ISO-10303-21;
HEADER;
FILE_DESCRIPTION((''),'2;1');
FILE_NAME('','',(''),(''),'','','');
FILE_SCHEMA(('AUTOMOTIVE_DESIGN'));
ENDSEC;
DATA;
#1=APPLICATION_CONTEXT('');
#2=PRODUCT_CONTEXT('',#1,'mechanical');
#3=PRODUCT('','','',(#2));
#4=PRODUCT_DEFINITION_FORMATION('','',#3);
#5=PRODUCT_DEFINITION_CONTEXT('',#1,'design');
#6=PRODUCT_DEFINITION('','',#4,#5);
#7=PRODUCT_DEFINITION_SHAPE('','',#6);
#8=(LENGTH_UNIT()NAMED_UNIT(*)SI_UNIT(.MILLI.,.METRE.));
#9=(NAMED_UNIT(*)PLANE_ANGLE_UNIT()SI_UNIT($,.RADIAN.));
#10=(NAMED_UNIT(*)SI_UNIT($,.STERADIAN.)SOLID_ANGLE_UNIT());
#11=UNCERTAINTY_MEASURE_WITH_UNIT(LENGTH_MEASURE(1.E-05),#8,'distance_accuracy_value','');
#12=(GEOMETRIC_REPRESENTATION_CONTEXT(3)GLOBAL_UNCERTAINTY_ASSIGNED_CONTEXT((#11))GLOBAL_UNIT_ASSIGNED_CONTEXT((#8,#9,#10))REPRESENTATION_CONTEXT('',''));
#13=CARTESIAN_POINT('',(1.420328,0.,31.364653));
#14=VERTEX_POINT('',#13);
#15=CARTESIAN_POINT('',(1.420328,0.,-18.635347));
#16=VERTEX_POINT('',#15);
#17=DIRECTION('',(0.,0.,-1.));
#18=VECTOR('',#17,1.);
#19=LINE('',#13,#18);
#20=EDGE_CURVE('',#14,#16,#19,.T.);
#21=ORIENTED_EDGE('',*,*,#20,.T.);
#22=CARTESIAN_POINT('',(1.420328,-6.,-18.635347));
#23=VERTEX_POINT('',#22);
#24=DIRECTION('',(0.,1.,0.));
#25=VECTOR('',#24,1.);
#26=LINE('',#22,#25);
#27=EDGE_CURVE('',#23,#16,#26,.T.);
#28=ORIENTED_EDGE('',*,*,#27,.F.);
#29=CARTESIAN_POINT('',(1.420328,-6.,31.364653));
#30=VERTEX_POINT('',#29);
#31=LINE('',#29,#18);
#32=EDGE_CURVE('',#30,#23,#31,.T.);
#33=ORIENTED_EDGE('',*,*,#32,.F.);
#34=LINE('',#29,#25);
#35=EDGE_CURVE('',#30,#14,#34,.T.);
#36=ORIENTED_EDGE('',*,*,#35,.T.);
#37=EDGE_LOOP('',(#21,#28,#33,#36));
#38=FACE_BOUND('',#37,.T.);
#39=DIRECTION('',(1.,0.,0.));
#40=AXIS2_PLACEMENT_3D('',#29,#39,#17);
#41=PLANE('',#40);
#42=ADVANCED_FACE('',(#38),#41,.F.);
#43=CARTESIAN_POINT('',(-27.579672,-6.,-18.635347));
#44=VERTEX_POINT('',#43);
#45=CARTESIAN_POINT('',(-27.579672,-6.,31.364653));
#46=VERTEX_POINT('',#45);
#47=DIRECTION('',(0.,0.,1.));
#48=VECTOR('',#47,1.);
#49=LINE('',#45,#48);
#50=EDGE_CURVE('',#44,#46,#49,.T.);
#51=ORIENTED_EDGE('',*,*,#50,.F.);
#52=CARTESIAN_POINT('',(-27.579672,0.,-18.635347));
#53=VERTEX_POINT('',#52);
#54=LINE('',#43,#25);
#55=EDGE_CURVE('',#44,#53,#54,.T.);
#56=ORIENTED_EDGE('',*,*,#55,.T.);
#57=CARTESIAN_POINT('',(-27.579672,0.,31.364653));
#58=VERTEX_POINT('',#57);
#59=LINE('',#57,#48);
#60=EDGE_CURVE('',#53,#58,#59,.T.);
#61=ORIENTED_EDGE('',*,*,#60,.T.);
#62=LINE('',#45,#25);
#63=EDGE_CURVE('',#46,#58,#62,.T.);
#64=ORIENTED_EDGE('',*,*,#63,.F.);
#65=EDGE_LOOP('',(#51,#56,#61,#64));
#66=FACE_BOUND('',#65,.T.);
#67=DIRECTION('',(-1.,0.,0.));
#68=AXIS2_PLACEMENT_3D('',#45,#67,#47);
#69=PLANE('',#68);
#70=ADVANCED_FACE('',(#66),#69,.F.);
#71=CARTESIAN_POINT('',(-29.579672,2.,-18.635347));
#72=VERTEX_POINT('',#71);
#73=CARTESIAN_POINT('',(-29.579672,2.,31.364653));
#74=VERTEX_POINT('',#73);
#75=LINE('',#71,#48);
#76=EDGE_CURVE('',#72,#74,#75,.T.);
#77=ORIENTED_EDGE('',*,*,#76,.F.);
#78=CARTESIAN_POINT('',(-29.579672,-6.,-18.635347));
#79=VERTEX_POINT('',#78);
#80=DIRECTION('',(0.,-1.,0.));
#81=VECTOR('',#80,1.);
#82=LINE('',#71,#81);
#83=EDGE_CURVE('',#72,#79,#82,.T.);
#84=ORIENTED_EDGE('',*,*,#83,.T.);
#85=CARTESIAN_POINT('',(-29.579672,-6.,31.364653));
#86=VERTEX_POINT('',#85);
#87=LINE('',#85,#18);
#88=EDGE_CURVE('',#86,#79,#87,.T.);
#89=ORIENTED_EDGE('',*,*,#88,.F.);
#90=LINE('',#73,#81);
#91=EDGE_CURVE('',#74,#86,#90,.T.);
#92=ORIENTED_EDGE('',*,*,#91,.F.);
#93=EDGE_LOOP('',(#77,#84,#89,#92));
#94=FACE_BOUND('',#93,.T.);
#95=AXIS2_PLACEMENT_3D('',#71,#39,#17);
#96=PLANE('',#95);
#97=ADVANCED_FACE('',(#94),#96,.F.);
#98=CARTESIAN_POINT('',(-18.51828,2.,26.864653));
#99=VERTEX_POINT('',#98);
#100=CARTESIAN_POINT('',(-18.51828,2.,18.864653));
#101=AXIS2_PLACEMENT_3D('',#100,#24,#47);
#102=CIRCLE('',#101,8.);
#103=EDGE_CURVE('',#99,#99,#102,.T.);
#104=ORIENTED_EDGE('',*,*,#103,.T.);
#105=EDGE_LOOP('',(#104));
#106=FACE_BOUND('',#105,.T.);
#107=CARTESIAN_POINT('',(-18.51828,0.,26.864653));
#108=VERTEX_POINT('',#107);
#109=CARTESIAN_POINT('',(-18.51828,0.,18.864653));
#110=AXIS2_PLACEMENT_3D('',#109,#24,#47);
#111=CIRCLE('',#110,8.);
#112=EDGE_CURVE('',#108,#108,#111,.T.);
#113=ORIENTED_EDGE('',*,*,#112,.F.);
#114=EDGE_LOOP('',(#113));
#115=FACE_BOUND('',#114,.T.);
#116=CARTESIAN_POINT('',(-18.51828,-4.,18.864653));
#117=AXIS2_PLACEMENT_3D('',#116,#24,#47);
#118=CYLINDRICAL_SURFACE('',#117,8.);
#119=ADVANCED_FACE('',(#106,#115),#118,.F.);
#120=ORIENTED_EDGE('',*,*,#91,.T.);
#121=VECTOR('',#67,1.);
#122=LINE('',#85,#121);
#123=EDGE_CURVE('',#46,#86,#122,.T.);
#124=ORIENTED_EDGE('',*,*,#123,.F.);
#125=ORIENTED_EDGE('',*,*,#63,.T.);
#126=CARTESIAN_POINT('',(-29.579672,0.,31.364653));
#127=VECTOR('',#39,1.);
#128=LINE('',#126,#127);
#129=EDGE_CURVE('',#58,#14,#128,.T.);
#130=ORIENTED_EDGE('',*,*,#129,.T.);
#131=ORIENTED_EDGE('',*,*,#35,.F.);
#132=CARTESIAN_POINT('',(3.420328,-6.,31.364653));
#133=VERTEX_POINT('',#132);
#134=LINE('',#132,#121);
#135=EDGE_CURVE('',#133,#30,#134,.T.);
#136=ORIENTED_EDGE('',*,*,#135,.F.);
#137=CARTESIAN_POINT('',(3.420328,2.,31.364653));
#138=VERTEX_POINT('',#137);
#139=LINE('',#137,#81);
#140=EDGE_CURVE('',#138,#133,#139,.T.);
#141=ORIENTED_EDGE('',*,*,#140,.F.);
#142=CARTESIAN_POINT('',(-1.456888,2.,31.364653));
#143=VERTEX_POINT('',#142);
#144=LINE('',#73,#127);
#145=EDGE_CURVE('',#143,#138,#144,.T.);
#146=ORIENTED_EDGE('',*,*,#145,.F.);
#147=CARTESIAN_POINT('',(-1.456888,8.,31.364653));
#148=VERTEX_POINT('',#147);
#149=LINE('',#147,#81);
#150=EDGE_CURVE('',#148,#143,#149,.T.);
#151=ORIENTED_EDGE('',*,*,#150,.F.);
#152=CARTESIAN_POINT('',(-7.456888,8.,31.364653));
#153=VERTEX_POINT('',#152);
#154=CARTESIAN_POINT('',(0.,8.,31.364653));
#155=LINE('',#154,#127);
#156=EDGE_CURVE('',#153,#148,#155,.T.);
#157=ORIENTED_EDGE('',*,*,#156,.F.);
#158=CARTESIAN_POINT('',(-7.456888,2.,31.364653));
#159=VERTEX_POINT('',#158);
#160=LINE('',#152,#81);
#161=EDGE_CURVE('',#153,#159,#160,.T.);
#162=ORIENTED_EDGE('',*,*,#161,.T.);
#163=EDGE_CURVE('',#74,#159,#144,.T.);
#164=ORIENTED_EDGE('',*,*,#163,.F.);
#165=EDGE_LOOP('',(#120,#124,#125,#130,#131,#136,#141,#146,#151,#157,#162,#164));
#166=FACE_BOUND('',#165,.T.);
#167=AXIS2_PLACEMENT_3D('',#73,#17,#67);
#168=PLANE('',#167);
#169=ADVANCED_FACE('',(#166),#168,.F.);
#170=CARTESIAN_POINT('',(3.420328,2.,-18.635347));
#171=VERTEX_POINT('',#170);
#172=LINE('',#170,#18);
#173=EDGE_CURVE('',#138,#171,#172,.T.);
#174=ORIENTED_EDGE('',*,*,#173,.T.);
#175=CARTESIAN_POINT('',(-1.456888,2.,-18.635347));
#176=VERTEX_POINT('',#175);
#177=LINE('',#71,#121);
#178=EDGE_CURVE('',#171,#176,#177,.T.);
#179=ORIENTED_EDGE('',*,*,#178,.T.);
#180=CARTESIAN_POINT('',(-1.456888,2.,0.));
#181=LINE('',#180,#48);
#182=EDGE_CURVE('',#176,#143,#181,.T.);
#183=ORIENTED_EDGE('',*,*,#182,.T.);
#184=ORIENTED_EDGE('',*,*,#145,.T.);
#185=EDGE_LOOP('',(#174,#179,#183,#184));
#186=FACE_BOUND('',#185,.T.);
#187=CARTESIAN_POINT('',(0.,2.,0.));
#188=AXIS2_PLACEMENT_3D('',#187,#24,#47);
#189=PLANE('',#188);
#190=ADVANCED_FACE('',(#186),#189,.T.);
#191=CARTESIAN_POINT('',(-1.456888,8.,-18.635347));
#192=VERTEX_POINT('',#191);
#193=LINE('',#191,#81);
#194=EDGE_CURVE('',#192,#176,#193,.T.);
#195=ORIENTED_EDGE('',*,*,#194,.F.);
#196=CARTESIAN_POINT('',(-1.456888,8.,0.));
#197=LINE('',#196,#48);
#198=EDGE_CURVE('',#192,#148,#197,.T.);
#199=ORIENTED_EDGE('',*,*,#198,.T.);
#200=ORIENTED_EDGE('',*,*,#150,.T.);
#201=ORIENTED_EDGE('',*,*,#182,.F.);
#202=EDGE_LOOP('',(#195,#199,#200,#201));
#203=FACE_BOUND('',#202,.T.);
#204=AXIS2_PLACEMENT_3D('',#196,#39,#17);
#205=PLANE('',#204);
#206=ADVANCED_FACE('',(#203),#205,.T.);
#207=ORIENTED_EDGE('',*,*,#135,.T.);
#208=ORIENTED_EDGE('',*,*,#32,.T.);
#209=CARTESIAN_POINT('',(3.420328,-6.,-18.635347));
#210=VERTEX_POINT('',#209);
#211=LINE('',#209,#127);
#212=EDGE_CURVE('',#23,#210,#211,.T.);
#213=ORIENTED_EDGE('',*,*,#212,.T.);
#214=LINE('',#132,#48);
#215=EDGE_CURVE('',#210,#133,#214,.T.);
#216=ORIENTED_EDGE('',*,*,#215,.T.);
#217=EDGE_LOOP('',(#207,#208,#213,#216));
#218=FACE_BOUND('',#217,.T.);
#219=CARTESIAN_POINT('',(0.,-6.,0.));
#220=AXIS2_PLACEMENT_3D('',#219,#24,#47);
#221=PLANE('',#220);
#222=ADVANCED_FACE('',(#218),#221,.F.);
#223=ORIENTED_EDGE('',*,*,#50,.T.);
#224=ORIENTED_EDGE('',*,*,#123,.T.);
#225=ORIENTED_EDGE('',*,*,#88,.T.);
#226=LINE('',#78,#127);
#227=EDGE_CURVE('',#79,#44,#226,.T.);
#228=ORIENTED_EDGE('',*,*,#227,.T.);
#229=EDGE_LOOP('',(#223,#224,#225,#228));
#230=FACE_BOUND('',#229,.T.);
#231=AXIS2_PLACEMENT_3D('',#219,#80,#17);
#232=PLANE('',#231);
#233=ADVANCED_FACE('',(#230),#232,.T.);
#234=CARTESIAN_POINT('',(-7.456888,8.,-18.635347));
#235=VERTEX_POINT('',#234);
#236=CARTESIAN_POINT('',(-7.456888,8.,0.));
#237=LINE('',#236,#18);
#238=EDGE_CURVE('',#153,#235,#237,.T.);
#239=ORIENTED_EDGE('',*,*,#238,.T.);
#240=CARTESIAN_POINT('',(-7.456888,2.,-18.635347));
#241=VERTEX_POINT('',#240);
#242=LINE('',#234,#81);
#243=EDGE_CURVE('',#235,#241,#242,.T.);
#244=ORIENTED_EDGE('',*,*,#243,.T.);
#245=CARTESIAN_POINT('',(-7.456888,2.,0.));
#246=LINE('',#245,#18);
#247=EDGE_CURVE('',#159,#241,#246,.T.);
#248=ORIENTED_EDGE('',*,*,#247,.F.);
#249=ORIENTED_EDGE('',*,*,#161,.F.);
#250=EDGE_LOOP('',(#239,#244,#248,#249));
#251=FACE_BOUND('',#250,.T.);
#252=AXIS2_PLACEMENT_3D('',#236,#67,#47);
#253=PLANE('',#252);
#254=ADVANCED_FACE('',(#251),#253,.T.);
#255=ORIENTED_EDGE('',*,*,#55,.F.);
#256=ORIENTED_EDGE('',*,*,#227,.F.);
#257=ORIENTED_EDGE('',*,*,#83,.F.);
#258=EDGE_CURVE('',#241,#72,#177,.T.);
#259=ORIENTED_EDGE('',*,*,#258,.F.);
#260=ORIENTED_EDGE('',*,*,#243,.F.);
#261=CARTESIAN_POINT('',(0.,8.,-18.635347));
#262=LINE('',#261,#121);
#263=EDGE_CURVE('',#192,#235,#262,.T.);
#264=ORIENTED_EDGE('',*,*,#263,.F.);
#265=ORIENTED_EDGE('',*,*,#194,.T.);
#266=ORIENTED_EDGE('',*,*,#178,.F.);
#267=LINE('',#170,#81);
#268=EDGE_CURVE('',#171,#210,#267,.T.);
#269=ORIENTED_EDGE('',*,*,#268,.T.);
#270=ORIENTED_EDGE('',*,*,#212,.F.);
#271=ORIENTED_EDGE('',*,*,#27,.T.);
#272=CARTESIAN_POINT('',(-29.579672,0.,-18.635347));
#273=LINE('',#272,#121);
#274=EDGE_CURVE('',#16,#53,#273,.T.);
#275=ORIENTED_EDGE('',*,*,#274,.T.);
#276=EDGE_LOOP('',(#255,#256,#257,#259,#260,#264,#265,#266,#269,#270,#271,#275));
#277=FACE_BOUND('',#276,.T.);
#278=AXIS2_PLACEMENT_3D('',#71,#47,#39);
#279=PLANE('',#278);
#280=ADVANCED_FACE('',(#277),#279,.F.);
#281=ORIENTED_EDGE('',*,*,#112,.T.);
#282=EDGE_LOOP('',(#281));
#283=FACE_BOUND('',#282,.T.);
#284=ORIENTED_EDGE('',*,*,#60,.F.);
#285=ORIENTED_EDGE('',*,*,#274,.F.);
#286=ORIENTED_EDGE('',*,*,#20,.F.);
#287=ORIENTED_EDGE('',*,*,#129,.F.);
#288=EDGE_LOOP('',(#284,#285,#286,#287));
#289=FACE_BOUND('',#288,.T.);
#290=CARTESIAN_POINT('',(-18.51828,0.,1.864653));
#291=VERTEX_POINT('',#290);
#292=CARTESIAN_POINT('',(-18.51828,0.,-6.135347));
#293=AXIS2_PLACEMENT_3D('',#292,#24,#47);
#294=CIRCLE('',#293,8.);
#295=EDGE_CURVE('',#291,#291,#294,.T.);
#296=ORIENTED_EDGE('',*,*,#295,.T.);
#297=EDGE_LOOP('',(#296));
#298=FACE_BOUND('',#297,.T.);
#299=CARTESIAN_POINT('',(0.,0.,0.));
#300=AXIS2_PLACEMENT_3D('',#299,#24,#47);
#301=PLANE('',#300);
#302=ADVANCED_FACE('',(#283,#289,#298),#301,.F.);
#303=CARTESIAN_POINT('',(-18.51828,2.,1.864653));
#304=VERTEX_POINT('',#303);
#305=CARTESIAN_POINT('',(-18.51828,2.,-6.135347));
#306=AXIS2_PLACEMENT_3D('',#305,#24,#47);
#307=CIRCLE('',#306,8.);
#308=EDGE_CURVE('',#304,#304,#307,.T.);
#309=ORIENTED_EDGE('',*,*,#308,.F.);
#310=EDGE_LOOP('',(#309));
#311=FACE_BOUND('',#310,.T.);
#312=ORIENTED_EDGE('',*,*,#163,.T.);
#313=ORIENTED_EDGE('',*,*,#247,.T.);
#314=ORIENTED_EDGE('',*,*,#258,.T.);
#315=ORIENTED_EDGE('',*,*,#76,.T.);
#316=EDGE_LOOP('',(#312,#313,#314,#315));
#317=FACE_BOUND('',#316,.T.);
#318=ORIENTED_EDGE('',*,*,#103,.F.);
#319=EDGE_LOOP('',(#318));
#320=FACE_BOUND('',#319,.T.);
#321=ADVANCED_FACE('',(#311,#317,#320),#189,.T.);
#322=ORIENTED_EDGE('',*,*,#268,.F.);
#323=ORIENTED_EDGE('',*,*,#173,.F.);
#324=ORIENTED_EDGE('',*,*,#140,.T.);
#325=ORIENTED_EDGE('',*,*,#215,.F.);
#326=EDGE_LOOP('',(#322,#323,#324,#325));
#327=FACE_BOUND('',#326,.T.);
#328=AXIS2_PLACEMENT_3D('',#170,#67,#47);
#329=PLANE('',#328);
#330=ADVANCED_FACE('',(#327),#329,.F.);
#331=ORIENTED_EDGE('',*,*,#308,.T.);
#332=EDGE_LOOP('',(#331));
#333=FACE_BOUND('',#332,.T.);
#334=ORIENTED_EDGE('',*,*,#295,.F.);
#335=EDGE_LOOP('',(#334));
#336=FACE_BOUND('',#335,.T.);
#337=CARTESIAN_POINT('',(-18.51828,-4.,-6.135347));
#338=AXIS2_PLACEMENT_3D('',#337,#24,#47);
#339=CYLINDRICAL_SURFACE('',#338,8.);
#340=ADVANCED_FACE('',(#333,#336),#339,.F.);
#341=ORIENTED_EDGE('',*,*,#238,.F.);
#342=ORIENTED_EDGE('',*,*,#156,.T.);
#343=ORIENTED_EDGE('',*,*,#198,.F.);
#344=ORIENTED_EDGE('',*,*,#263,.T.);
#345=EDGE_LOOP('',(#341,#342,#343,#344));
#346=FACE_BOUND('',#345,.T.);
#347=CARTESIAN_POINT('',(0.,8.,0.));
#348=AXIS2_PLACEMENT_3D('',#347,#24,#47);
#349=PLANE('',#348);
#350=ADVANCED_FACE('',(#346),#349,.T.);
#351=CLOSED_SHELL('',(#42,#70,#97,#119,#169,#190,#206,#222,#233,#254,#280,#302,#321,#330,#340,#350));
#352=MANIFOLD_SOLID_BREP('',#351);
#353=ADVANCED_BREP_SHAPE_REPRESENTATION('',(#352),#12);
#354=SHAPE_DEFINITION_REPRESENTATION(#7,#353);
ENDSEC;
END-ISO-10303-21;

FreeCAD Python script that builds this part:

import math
import FreeCAD as App
import Part
import Sketcher

V = App.Vector
Q = App.Units.Quantity


def add_polygon(sketch, points):
    """Adds a closed chain of lines whose ends are joined by coincident constraints."""
    first, n = sketch.GeometryCount, len(points)
    for a, b in zip(points, points[1:] + points[:1]):
        sketch.addGeometry(Part.LineSegment(App.Vector(*a, 0), App.Vector(*b, 0)), False)
    for i in range(n):
        sketch.addConstraint(Sketcher.Constraint("Coincident", first + i, 2, first + (i + 1) % n, 1))

doc = App.newDocument("Part")
params = doc.addObject("Spreadsheet::Sheet", "Params")
for row, (alias, value) in enumerate([
    ("sketch1_width", "33 mm"),
    ("sketch1_height", "50 mm"),
    ("pad1_length", "2 mm"),
    ("sketch2_width", "2 mm"),
    ("sketch2_height", "50 mm"),
    ("pad2_length", "6 mm"),
    ("sketch3_width", "6 mm"),
    ("sketch3_height", "50 mm"),
    ("pad3_length", "6 mm"),
    ("sketch4_radius", "8 mm"),
    ("pocket1_length", "6 mm"),
], start=1):
    params.set(f"A{row}", alias)
    params.set(f"B{row}", "=" + value)
    params.setAlias(f"B{row}", alias)

body = doc.addObject("PartDesign::Body", "Body")

sketch1 = doc.addObject("Sketcher::SketchObject", "Sketch")
body.addObject(sketch1)
sketch1.AttachmentSupport = (doc.XZ_Plane, [""])
sketch1.MapMode = "FlatFace"
add_polygon(sketch1, [(-30, -19), (-30, 31), (3, 31), (3, -19)])
sketch1.addConstraint(Sketcher.Constraint("Vertical", 0))
sketch1.addConstraint(Sketcher.Constraint("Horizontal", 1))
sketch1.addConstraint(Sketcher.Constraint("Vertical", 2))
sketch1.addConstraint(Sketcher.Constraint("Horizontal", 3))
sketch1.addConstraint(Sketcher.Constraint("DistanceX", 1, 1, 1, 2, Q("33 mm")))
sketch1.addConstraint(Sketcher.Constraint("DistanceY", 0, 1, 0, 2, Q("50 mm")))
sketch1.addConstraint(Sketcher.Constraint("DistanceX", 0, 2, -1, 1, Q("29.579672 mm")))
sketch1.addConstraint(Sketcher.Constraint("DistanceY", -1, 1, 0, 2, Q("31.364653 mm")))
sketch1.setExpression("Constraints[8]", "Params.sketch1_width")
sketch1.setExpression("Constraints[9]", "Params.sketch1_height")
pad1 = doc.addObject("PartDesign::Pad", "Pad")
body.addObject(pad1)
pad1.Profile = sketch1
pad1.setExpression("Length", "Params.pad1_length")
pad1.Reversed = True

sketch2 = doc.addObject("Sketcher::SketchObject", "Sketch001")
body.addObject(sketch2)
sketch2.AttachmentSupport = (doc.XZ_Plane, [""])
sketch2.MapMode = "FlatFace"
add_polygon(sketch2, [(-29.6, 31.4), (-29.6, -18.6), (-27.6, -18.6), (-27.6, 31.4)])
add_polygon(sketch2, [(1.4, 31.4), (1.4, -18.6), (3.4, -18.6), (3.4, 31.4)])
sketch2.addConstraint(Sketcher.Constraint("Vertical", 0))
sketch2.addConstraint(Sketcher.Constraint("Horizontal", 1))
sketch2.addConstraint(Sketcher.Constraint("Vertical", 2))
sketch2.addConstraint(Sketcher.Constraint("Horizontal", 3))
sketch2.addConstraint(Sketcher.Constraint("Vertical", 4))
sketch2.addConstraint(Sketcher.Constraint("Horizontal", 5))
sketch2.addConstraint(Sketcher.Constraint("Vertical", 6))
sketch2.addConstraint(Sketcher.Constraint("Horizontal", 7))
sketch2.addConstraint(Sketcher.Constraint("Horizontal", 1, 2, 4, 2))
sketch2.addConstraint(Sketcher.Constraint("Horizontal", 3, 2, 6, 2))
sketch2.addConstraint(Sketcher.Constraint("Equal", 3, 5))
sketch2.addConstraint(Sketcher.Constraint("DistanceX", 1, 1, 1, 2, Q("2 mm")))
sketch2.addConstraint(Sketcher.Constraint("DistanceY", 0, 2, 0, 1, Q("50 mm")))
sketch2.addConstraint(Sketcher.Constraint("DistanceX", 1, 2, 4, 2, Q("29 mm")))
sketch2.addConstraint(Sketcher.Constraint("DistanceX", 0, 2, -1, 1, Q("29.579672 mm")))
sketch2.addConstraint(Sketcher.Constraint("DistanceY", 0, 2, -1, 1, Q("18.635347 mm")))
sketch2.setExpression("Constraints[19]", "Params.sketch2_width")
sketch2.setExpression("Constraints[20]", "Params.sketch2_height")
pad2 = doc.addObject("PartDesign::Pad", "Pad001")
body.addObject(pad2)
pad2.Profile = sketch2
pad2.setExpression("Length", "Params.pad2_length")

sketch3 = doc.addObject("Sketcher::SketchObject", "Sketch002")
body.addObject(sketch3)
sketch3.AttachmentSupport = (doc.XZ_Plane, [""])
sketch3.MapMode = "FlatFace"
sketch3.AttachmentOffset = App.Placement(V(0, 0, -2), App.Rotation())
add_polygon(sketch3, [(-7, 31), (-1, 31), (-1, -19), (-7, -19)])
sketch3.addConstraint(Sketcher.Constraint("Horizontal", 0))
sketch3.addConstraint(Sketcher.Constraint("Vertical", 1))
sketch3.addConstraint(Sketcher.Constraint("Horizontal", 2))
sketch3.addConstraint(Sketcher.Constraint("Vertical", 3))
sketch3.addConstraint(Sketcher.Constraint("DistanceX", 0, 1, 0, 2, Q("6 mm")))
sketch3.addConstraint(Sketcher.Constraint("DistanceY", 1, 2, 1, 1, Q("50 mm")))
sketch3.addConstraint(Sketcher.Constraint("DistanceX", 0, 2, -1, 1, Q("1.456888 mm")))
sketch3.addConstraint(Sketcher.Constraint("DistanceY", -1, 1, 0, 2, Q("31.364653 mm")))
sketch3.setExpression("Constraints[8]", "Params.sketch3_width")
sketch3.setExpression("Constraints[9]", "Params.sketch3_height")
pad3 = doc.addObject("PartDesign::Pad", "Pad002")
body.addObject(pad3)
pad3.Profile = sketch3
pad3.setExpression("Length", "Params.pad3_length")
pad3.Reversed = True

sketch4 = doc.addObject("Sketcher::SketchObject", "Sketch003")
body.addObject(sketch4)
sketch4.AttachmentSupport = (doc.XZ_Plane, [""])
sketch4.MapMode = "FlatFace"
sketch4.AttachmentOffset = App.Placement(V(0, 0, -2), App.Rotation())
sketch4.addGeometry(Part.ArcOfCircle(Part.Circle(V(-19, 19, 0), V(0, 0, 1), 8), math.radians(-90), math.radians(0)), False)
sketch4.addGeometry(Part.ArcOfCircle(Part.Circle(V(-19, 19, 0), V(0, 0, 1), 8), math.radians(90), math.radians(270)), False)
sketch4.addGeometry(Part.ArcOfCircle(Part.Circle(V(-19, 19, 0), V(0, 0, 1), 8), math.radians(0), math.radians(90)), False)
sketch4.addGeometry(Part.ArcOfCircle(Part.Circle(V(-19, -6, 0), V(0, 0, 1), 8), math.radians(90), math.radians(270)), False)
sketch4.addGeometry(Part.ArcOfCircle(Part.Circle(V(-19, -6, 0), V(0, 0, 1), 8), math.radians(0), math.radians(90)), False)
sketch4.addGeometry(Part.ArcOfCircle(Part.Circle(V(-19, -6, 0), V(0, 0, 1), 8), math.radians(-90), math.radians(0)), False)
sketch4.addConstraint(Sketcher.Constraint("Tangent", 0, 1, 1, 2))
sketch4.addConstraint(Sketcher.Constraint("Tangent", 1, 1, 2, 2))
sketch4.addConstraint(Sketcher.Constraint("Tangent", 2, 1, 0, 2))
sketch4.addConstraint(Sketcher.Constraint("Tangent", 3, 1, 4, 2))
sketch4.addConstraint(Sketcher.Constraint("Tangent", 4, 1, 5, 2))
sketch4.addConstraint(Sketcher.Constraint("Tangent", 5, 1, 3, 2))
sketch4.addConstraint(Sketcher.Constraint("Equal", 2, 3))
sketch4.addConstraint(Sketcher.Constraint("Horizontal", 1, 3, 2, 1))
sketch4.addConstraint(Sketcher.Constraint("Horizontal", 5, 3, 4, 1))
sketch4.addConstraint(Sketcher.Constraint("Vertical", 2, 3, 3, 3))
sketch4.addConstraint(Sketcher.Constraint("Vertical", 5, 3, 0, 1))
sketch4.addConstraint(Sketcher.Constraint("Vertical", 0, 1, 1, 1))
sketch4.addConstraint(Sketcher.Constraint("Vertical", 1, 1, 3, 1))
sketch4.addConstraint(Sketcher.Constraint("Vertical", 3, 1, 5, 1))
sketch4.addConstraint(Sketcher.Constraint("Radius", 0, Q("8 mm")))
sketch4.addConstraint(Sketcher.Constraint("DistanceY", 3, 3, 0, 3, Q("25 mm")))
sketch4.addConstraint(Sketcher.Constraint("DistanceX", 0, 3, -1, 1, Q("18.51828 mm")))
sketch4.addConstraint(Sketcher.Constraint("DistanceY", -1, 1, 0, 3, Q("18.864653 mm")))
sketch4.setExpression("Constraints[14]", "Params.sketch4_radius")
pocket1 = doc.addObject("PartDesign::Pocket", "Pocket")
body.addObject(pocket1)
pocket1.Profile = sketch4
pocket1.setExpression("Length", "Params.pocket1_length")
pocket1.Reversed = True

doc.recompute()
